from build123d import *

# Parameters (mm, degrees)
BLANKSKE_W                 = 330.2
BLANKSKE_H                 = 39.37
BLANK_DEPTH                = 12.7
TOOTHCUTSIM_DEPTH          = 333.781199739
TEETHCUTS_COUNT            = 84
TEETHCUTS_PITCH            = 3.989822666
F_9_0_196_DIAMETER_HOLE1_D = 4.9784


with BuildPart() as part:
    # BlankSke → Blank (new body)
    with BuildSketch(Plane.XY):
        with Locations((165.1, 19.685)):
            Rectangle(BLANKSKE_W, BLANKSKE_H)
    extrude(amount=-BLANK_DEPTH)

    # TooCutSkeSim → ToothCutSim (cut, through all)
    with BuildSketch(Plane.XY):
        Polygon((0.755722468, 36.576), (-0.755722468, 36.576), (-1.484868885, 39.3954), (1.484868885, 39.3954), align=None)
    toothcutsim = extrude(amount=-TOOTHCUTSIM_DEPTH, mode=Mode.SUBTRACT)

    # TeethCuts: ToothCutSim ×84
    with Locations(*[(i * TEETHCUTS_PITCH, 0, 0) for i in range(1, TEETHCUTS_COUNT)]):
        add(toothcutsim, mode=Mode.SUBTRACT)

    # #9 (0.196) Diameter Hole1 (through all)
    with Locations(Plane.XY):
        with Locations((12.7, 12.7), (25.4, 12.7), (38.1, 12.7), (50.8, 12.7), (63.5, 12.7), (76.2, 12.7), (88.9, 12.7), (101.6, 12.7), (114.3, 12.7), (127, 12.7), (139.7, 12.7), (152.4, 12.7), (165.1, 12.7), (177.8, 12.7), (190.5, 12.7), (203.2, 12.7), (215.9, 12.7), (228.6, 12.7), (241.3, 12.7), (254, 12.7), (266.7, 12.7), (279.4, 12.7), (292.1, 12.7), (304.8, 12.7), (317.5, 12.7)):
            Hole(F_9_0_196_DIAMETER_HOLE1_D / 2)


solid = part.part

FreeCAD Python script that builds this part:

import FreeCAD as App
import Part
import Sketcher
from FreeCAD import Vector
Q = App.Units.Quantity

doc = App.newDocument("Part")
body = doc.addObject("PartDesign::Body", "Body")

sketch1 = body.newObject("Sketcher::SketchObject", "Sketch")
sketch1.AttachmentSupport = (doc.getObject("XY_Plane"), [""])
sketch1.MapMode = "FlatFace"
sketch1.addGeometry(Part.LineSegment(Vector(0, 39.37, 0), Vector(0, 0, 0)), False)
sketch1.addGeometry(Part.LineSegment(Vector(0, 0, 0), Vector(330.2, 0, 0)), False)
sketch1.addGeometry(Part.LineSegment(Vector(330.2, 0, 0), Vector(330.2, 39.37, 0)), False)
sketch1.addGeometry(Part.LineSegment(Vector(330.2, 39.37, 0), Vector(0, 39.37, 0)), False)
sketch1.addConstraint(Sketcher.Constraint("Coincident", 0, 2, 1, 1))
sketch1.addConstraint(Sketcher.Constraint("Coincident", 1, 2, 2, 1))
sketch1.addConstraint(Sketcher.Constraint("Coincident", 2, 2, 3, 1))
sketch1.addConstraint(Sketcher.Constraint("Coincident", 3, 2, 0, 1))
sketch1.addConstraint(Sketcher.Constraint("Vertical", 0))
sketch1.addConstraint(Sketcher.Constraint("Horizontal", 1))
sketch1.addConstraint(Sketcher.Constraint("Vertical", 2))
sketch1.addConstraint(Sketcher.Constraint("Horizontal", 3))
sketch1.addConstraint(Sketcher.Constraint("Coincident", 0, 2, -1, 1))
sketch1.addConstraint(Sketcher.Constraint("DistanceX", 1, 1, 1, 2, Q("13 in")))
sketch1.addConstraint(Sketcher.Constraint("DistanceY", 0, 2, 0, 1, Q("1.55 in")))
pad1 = body.newObject("PartDesign::Pad", "Pad")
pad1.Profile = sketch1
pad1.Length = Q("0.5 in")
pad1.Reversed = True

sketch2 = body.newObject("Sketcher::SketchObject", "Sketch001")
sketch2.AttachmentSupport = (doc.getObject("XY_Plane"), [""])
sketch2.MapMode = "FlatFace"
sketch2.addGeometry(Part.LineSegment(Vector(-0.755722, 36.576, 0), Vector(0.755722, 36.576, 0)), False)
sketch2.addGeometry(Part.LineSegment(Vector(0.755722, 36.576, 0), Vector(1.484869, 39.3954, 0)), False)
sketch2.addGeometry(Part.LineSegment(Vector(1.484869, 39.3954, 0), Vector(-1.484869, 39.3954, 0)), False)
sketch2.addGeometry(Part.LineSegment(Vector(-1.484869, 39.3954, 0), Vector(-0.755722, 36.576, 0)), False)
sketch2.addConstraint(Sketcher.Constraint("Coincident", 0, 2, 1, 1))
sketch2.addConstraint(Sketcher.Constraint("Coincident", 1, 2, 2, 1))
sketch2.addConstraint(Sketcher.Constraint("Coincident", 2, 2, 3, 1))
sketch2.addConstraint(Sketcher.Constraint("Coincident", 3, 2, 0, 1))
sketch2.addConstraint(Sketcher.Constraint("Horizontal", 0))
sketch2.addConstraint(Sketcher.Constraint("Horizontal", 2))
sketch2.addConstraint(Sketcher.Constraint("Equal", 1, 3))
sketch2.addConstraint(Sketcher.Constraint("Angle", 1, Q("75.5 deg")))
sketch2.addConstraint(Sketcher.Constraint("DistanceY", -1, 1, 0, 2, Q("1.44 in")))
sketch2.addConstraint(Sketcher.Constraint("DistanceY", -1, 1, 1, 2, Q("1.551 in")))
sketch2.addConstraint(Sketcher.Constraint("DistanceX", 0, 1, 0, 2, Q("1.511445 mm")))
sketch2.addConstraint(Sketcher.Constraint("DistanceX", -1, 1, 1, 2, Q("1.484869 mm")))
pocket1 = body.newObject("PartDesign::Pocket", "Pocket")
pocket1.Profile = sketch2
pocket1.Type = "ThroughAll"
doc.recompute()

linearpattern = body.newObject("PartDesign::LinearPattern", "LinearPattern")
linearpattern.Originals = [pocket1]
linearpattern.Direction = (doc.getObject("X_Axis"), [""])
linearpattern.Mode = "offset"
linearpattern.Offset = 3.989823
linearpattern.Occurrences = 84
body.Tip = linearpattern

sketch3 = body.newObject("Sketcher::SketchObject", "Sketch002")
sketch3.AttachmentSupport = (doc.getObject("XY_Plane"), [""])
sketch3.MapMode = "FlatFace"
sketch3.addGeometry(Part.Circle(Vector(12.7, 12.7, 0), Vector(0, 0, 1), 2.4892), False)
sketch3.addGeometry(Part.Circle(Vector(25.4, 12.7, 0), Vector(0, 0, 1), 2.4892), False)
sketch3.addGeometry(Part.Circle(Vector(38.1, 12.7, 0), Vector(0, 0, 1), 2.4892), False)
sketch3.addGeometry(Part.Circle(Vector(50.8, 12.7, 0), Vector(0, 0, 1), 2.4892), False)
sketch3.addGeometry(Part.Circle(Vector(63.5, 12.7, 0), Vector(0, 0, 1), 2.4892), False)
sketch3.addGeometry(Part.Circle(Vector(76.2, 12.7, 0), Vector(0, 0, 1), 2.4892), False)
sketch3.addGeometry(Part.Circle(Vector(88.9, 12.7, 0), Vector(0, 0, 1), 2.4892), False)
sketch3.addGeometry(Part.Circle(Vector(101.6, 12.7, 0), Vector(0, 0, 1), 2.4892), False)
sketch3.addGeometry(Part.Circle(Vector(114.3, 12.7, 0), Vector(0, 0, 1), 2.4892), False)
sketch3.addGeometry(Part.Circle(Vector(127, 12.7, 0), Vector(0, 0, 1), 2.4892), False)
sketch3.addGeometry(Part.Circle(Vector(139.7, 12.7, 0), Vector(0, 0, 1), 2.4892), False)
sketch3.addGeometry(Part.Circle(Vector(152.4, 12.7, 0), Vector(0, 0, 1), 2.4892), False)
sketch3.addGeometry(Part.Circle(Vector(165.1, 12.7, 0), Vector(0, 0, 1), 2.4892), False)
sketch3.addGeometry(Part.Circle(Vector(177.8, 12.7, 0), Vector(0, 0, 1), 2.4892), False)
sketch3.addGeometry(Part.Circle(Vector(190.5, 12.7, 0), Vector(0, 0, 1), 2.4892), False)
sketch3.addGeometry(Part.Circle(Vector(203.2, 12.7, 0), Vector(0, 0, 1), 2.4892), False)
sketch3.addGeometry(Part.Circle(Vector(215.9, 12.7, 0), Vector(0, 0, 1), 2.4892), False)
sketch3.addGeometry(Part.Circle(Vector(228.6, 12.7, 0), Vector(0, 0, 1), 2.4892), False)
sketch3.addGeometry(Part.Circle(Vector(241.3, 12.7, 0), Vector(0, 0, 1), 2.4892), False)
sketch3.addGeometry(Part.Circle(Vector(254, 12.7, 0), Vector(0, 0, 1), 2.4892), False)
sketch3.addGeometry(Part.Circle(Vector(266.7, 12.7, 0), Vector(0, 0, 1), 2.4892), False)
sketch3.addGeometry(Part.Circle(Vector(279.4, 12.7, 0), Vector(0, 0, 1), 2.4892), False)
sketch3.addGeometry(Part.Circle(Vector(292.1, 12.7, 0), Vector(0, 0, 1), 2.4892), False)
sketch3.addGeometry(Part.Circle(Vector(304.8, 12.7, 0), Vector(0, 0, 1), 2.4892), False)
sketch3.addGeometry(Part.Circle(Vector(317.5, 12.7, 0), Vector(0, 0, 1), 2.4892), False)
sketch3.addConstraint(Sketcher.Constraint("Equal", 0, 1))
sketch3.addConstraint(Sketcher.Constraint("Equal", 1, 2))
sketch3.addConstraint(Sketcher.Constraint("Equal", 2, 3))
sketch3.addConstraint(Sketcher.Constraint("Equal", 3, 4))
sketch3.addConstraint(Sketcher.Constraint("Equal", 4, 5))
sketch3.addConstraint(Sketcher.Constraint("Equal", 5, 6))
sketch3.addConstraint(Sketcher.Constraint("Equal", 6, 7))
sketch3.addConstraint(Sketcher.Constraint("Equal", 7, 8))
sketch3.addConstraint(Sketcher.Constraint("Equal", 8, 9))
sketch3.addConstraint(Sketcher.Constraint("Equal", 9, 10))
sketch3.addConstraint(Sketcher.Constraint("Equal", 10, 11))
sketch3.addConstraint(Sketcher.Constraint("Equal", 11, 12))
sketch3.addConstraint(Sketcher.Constraint("Equal", 12, 13))
sketch3.addConstraint(Sketcher.Constraint("Equal", 13, 14))
sketch3.addConstraint(Sketcher.Constraint("Equal", 14, 15))
sketch3.addConstraint(Sketcher.Constraint("Equal", 15, 16))
sketch3.addConstraint(Sketcher.Constraint("Equal", 16, 17))
sketch3.addConstraint(Sketcher.Constraint("Equal", 17, 18))
sketch3.addConstraint(Sketcher.Constraint("Equal", 18, 19))
sketch3.addConstraint(Sketcher.Constraint("Equal", 19, 20))
sketch3.addConstraint(Sketcher.Constraint("Equal", 20, 21))
sketch3.addConstraint(Sketcher.Constraint("Equal", 21, 22))
sketch3.addConstraint(Sketcher.Constraint("Equal", 22, 23))
sketch3.addConstraint(Sketcher.Constraint("Equal", 23, 24))
sketch3.addConstraint(Sketcher.Constraint("Horizontal", 0, 3, 1, 3))
sketch3.addConstraint(Sketcher.Constraint("Horizontal", 1, 3, 2, 3))
sketch3.addConstraint(Sketcher.Constraint("Horizontal", 2, 3, 3, 3))
sketch3.addConstraint(Sketcher.Constraint("Horizontal", 3, 3, 4, 3))
sketch3.addConstraint(Sketcher.Constraint("Horizontal", 4, 3, 5, 3))
sketch3.addConstraint(Sketcher.Constraint("Horizontal", 5, 3, 6, 3))
sketch3.addConstraint(Sketcher.Constraint("Horizontal", 6, 3, 7, 3))
sketch3.addConstraint(Sketcher.Constraint("Horizontal", 7, 3, 8, 3))
sketch3.addConstraint(Sketcher.Constraint("Horizontal", 8, 3, 9, 3))
sketch3.addConstraint(Sketcher.Constraint("Horizontal", 9, 3, 10, 3))
sketch3.addConstraint(Sketcher.Constraint("Horizontal", 10, 3, 11, 3))
sketch3.addConstraint(Sketcher.Constraint("Horizontal", 11, 3, 12, 3))
sketch3.addConstraint(Sketcher.Constraint("Horizontal", 12, 3, 13, 3))
sketch3.addConstraint(Sketcher.Constraint("Horizontal", 13, 3, 14, 3))
sketch3.addConstraint(Sketcher.Constraint("Horizontal", 14, 3, 15, 3))
sketch3.addConstraint(Sketcher.Constraint("Horizontal", 15, 3, 16, 3))
sketch3.addConstraint(Sketcher.Constraint("Horizontal", 16, 3, 17, 3))
sketch3.addConstraint(Sketcher.Constraint("Horizontal", 17, 3, 18, 3))
sketch3.addConstraint(Sketcher.Constraint("Horizontal", 18, 3, 19, 3))
sketch3.addConstraint(Sketcher.Constraint("Horizontal", 19, 3, 20, 3))
sketch3.addConstraint(Sketcher.Constraint("Horizontal", 20, 3, 21, 3))
sketch3.addConstraint(Sketcher.Constraint("Horizontal", 21, 3, 22, 3))
sketch3.addConstraint(Sketcher.Constraint("Horizontal", 22, 3, 23, 3))
sketch3.addConstraint(Sketcher.Constraint("Horizontal", 23, 3, 24, 3))
sketch3.addConstraint(Sketcher.Constraint("Diameter", 0, Q("0.196 in")))
sketch3.addConstraint(Sketcher.Constraint("DistanceX", -1, 1, 1, 3, Q("1 in")))
sketch3.addConstraint(Sketcher.Constraint("DistanceX", -1, 1, 3, 3, Q("2 in")))
sketch3.addConstraint(Sketcher.Constraint("DistanceX", -1, 1, 5, 3, Q("3 in")))
sketch3.addConstraint(Sketcher.Constraint("DistanceX", -1, 1, 7, 3, Q("4 in")))
sketch3.addConstraint(Sketcher.Constraint("DistanceX", -1, 1, 9, 3, Q("5 in")))
sketch3.addConstraint(Sketcher.Constraint("DistanceX", -1, 1, 11, 3, Q("6 in")))
sketch3.addConstraint(Sketcher.Constraint("DistanceX", -1, 1, 13, 3, Q("7 in")))
sketch3.addConstraint(Sketcher.Constraint("DistanceX", -1, 1, 15, 3, Q("8 in")))
sketch3.addConstraint(Sketcher.Constraint("DistanceX", -1, 1, 17, 3, Q("9 in")))
sketch3.addConstraint(Sketcher.Constraint("DistanceX", -1, 1, 19, 3, Q("10 in")))
sketch3.addConstraint(Sketcher.Constraint("DistanceX", -1, 1, 21, 3, Q("11 in")))
sketch3.addConstraint(Sketcher.Constraint("DistanceX", -1, 1, 23, 3, Q("12 in")))
sketch3.addConstraint(Sketcher.Constraint("DistanceX", 0, 3, 2, 3, Q("1 in")))
sketch3.addConstraint(Sketcher.Constraint("DistanceX", 2, 3, 4, 3, Q("1 in")))
sketch3.addConstraint(Sketcher.Constraint("DistanceX", 4, 3, 6, 3, Q("1 in")))
sketch3.addConstraint(Sketcher.Constraint("DistanceX", 6, 3, 8, 3, Q("1 in")))
sketch3.addConstraint(Sketcher.Constraint("DistanceX", 8, 3, 10, 3, Q("1 in")))
sketch3.addConstraint(Sketcher.Constraint("DistanceX", 10, 3, 12, 3, Q("1 in")))
sketch3.addConstraint(Sketcher.Constraint("DistanceX", 12, 3, 14, 3, Q("1 in")))
sketch3.addConstraint(Sketcher.Constraint("DistanceX", 14, 3, 16, 3, Q("1 in")))
sketch3.addConstraint(Sketcher.Constraint("DistanceX", 16, 3, 18, 3, Q("1 in")))
sketch3.addConstraint(Sketcher.Constraint("DistanceX", 18, 3, 20, 3, Q("1 in")))
sketch3.addConstraint(Sketcher.Constraint("DistanceX", 20, 3, 22, 3, Q("1 in")))
sketch3.addConstraint(Sketcher.Constraint("DistanceX", 22, 3, 24, 3, Q("1 in")))
sketch3.addConstraint(Sketcher.Constraint("DistanceX", -1, 1, 0, 3, Q("0.5 in")))
sketch3.addConstraint(Sketcher.Constraint("DistanceY", -1, 1, 0, 3, Q("0.5 in")))
doc.recompute()
hole = body.newObject("PartDesign::Hole", "Hole")
hole.Profile = sketch3
hole.ThreadType = "None"
hole.Diameter = Q("0.196 in")
hole.DepthType = "ThroughAll"

doc.recompute()
